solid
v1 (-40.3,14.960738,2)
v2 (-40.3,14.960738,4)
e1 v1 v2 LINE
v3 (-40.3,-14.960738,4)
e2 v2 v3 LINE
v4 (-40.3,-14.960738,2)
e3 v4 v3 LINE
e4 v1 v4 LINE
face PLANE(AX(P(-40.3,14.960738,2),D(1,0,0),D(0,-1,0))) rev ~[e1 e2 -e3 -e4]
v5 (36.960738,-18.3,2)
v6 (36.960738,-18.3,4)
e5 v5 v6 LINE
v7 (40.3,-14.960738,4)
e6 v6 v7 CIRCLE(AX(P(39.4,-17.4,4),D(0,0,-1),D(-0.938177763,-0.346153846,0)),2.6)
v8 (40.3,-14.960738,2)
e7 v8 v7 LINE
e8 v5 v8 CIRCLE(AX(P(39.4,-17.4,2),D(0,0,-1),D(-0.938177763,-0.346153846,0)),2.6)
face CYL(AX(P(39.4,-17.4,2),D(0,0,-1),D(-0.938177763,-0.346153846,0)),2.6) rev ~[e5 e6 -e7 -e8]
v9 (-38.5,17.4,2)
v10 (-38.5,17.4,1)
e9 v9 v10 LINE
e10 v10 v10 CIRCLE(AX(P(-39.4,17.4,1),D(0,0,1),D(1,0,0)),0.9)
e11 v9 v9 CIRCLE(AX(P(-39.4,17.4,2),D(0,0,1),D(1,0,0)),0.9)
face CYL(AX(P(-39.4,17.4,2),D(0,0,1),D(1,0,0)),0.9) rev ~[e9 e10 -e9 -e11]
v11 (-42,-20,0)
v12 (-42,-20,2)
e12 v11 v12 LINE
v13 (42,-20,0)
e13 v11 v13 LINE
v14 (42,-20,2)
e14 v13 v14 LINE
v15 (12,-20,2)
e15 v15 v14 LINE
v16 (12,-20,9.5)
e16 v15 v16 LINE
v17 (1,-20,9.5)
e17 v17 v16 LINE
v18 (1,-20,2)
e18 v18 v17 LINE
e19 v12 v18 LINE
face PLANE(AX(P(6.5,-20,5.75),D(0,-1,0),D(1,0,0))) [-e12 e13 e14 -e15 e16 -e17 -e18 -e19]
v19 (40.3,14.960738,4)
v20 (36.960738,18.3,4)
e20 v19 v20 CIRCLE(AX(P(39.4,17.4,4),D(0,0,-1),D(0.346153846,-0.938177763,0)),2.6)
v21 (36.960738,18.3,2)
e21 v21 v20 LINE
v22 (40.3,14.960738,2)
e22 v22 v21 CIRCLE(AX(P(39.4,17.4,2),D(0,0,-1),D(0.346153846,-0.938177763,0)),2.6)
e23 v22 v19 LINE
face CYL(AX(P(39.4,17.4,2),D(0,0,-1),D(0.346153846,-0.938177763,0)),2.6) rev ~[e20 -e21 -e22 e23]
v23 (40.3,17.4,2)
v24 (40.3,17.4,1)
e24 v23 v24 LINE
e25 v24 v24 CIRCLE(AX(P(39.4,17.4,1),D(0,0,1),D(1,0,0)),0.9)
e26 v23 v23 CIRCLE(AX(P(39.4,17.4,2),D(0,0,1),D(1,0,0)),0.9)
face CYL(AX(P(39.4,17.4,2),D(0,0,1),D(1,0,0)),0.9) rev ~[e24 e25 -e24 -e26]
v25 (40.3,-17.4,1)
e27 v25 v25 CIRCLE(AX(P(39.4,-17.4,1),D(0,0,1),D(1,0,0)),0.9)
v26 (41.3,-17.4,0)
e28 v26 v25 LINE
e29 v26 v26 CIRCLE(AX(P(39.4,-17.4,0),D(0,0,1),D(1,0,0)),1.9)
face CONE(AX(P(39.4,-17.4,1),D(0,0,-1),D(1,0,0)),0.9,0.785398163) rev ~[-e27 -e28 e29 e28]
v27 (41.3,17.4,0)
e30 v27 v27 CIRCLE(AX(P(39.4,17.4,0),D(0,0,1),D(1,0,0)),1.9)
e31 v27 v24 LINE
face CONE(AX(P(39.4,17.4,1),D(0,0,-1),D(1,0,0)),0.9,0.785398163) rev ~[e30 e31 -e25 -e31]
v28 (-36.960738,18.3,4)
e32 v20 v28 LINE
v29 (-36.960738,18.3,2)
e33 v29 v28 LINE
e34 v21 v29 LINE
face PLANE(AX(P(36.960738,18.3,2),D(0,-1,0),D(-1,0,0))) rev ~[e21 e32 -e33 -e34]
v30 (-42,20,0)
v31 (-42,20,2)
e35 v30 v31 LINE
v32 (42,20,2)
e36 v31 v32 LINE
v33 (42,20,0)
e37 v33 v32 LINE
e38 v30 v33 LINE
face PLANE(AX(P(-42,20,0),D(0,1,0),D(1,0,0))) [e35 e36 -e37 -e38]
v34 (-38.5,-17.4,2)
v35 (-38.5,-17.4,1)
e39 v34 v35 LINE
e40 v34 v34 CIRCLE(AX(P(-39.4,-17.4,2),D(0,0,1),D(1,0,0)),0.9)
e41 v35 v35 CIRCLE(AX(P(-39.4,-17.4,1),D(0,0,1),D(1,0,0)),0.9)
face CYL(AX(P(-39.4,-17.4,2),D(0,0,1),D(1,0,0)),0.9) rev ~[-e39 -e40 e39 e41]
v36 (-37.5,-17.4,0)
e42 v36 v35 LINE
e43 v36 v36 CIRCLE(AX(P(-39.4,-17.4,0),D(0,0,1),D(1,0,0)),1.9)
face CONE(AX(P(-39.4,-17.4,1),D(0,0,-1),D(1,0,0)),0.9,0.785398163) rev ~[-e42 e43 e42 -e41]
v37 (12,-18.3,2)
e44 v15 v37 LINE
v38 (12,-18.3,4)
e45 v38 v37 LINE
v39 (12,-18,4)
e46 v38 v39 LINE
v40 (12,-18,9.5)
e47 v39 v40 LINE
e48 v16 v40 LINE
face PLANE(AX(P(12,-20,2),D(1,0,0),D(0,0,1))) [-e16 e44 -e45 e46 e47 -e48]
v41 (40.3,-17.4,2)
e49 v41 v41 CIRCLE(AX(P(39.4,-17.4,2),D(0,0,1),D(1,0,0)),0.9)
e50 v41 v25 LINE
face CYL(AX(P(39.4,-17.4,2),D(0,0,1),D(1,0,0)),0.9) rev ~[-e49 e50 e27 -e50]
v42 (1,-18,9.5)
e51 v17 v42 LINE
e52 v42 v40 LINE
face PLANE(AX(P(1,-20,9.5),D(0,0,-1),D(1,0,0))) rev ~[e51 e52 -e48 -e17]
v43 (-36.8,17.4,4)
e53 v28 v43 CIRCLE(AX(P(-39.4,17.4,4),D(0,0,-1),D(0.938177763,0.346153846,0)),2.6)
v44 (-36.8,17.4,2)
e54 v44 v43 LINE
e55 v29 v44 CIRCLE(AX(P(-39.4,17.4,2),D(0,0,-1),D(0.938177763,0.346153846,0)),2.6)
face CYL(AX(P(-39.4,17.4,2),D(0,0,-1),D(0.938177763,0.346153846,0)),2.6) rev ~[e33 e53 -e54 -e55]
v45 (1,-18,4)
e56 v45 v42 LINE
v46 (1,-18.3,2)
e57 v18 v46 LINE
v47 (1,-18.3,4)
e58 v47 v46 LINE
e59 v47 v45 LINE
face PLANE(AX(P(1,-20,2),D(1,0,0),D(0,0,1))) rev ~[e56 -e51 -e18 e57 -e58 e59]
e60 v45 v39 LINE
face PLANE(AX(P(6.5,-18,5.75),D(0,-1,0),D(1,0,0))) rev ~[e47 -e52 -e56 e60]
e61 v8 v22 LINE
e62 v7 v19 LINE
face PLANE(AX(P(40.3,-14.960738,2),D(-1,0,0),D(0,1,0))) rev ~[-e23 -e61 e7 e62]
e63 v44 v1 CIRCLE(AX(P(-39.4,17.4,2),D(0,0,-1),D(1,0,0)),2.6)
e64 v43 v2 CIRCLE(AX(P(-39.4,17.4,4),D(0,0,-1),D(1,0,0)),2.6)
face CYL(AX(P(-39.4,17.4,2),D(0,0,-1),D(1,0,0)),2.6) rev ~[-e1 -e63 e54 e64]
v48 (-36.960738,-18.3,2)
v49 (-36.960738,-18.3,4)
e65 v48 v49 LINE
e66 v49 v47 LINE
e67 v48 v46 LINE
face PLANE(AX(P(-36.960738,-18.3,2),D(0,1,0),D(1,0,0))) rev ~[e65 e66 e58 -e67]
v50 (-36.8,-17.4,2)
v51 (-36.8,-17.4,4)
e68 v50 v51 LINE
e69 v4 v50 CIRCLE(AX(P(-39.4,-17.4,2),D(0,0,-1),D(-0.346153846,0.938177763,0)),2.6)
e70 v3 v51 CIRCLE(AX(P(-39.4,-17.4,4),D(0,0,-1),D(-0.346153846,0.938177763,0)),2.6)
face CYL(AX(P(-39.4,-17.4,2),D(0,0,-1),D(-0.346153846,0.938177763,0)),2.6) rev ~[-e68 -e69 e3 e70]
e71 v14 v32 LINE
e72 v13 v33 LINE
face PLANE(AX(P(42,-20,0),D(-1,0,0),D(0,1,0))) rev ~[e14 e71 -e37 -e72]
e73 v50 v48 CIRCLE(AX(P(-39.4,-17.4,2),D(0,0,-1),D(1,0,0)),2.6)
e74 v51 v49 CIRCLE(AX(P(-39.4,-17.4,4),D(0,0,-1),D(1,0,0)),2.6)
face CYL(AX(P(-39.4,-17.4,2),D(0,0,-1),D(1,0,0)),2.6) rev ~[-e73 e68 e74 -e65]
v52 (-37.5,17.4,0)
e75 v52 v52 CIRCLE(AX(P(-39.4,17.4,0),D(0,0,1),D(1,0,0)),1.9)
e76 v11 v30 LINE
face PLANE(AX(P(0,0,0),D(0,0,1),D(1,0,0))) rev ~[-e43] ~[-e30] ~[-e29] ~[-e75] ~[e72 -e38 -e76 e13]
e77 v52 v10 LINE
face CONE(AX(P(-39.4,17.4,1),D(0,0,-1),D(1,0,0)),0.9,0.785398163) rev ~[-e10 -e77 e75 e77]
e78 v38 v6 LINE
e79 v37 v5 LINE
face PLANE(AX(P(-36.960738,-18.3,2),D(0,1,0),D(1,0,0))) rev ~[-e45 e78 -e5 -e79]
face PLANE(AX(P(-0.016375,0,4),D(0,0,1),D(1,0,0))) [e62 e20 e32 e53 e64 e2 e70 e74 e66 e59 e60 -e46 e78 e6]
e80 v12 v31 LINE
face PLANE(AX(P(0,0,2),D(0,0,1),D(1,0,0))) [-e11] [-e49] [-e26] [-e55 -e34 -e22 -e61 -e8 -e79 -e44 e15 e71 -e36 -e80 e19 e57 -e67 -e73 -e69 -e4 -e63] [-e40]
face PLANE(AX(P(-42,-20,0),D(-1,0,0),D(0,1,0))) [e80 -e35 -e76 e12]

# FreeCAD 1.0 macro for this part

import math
import FreeCAD as App
import Part
import Sketcher

V = App.Vector


def edges_at(feature, points):
    """Names of the edges that pass closest to the given points."""
    edges = feature.Shape.Edges
    near = lambda p: min(range(len(edges)), key=lambda i: edges[i].distToShape(Part.Vertex(*p))[0])
    return sorted({f"Edge{near(p) + 1}" for p in points})

doc = App.newDocument("Part")
body = doc.addObject("PartDesign::Body", "Body")

# Sketch on XY plane
sketch1 = doc.addObject("Sketcher::SketchObject", "Sketch")
body.addObject(sketch1)
sketch1.AttachmentSupport = (doc.XY_Plane, [""])
sketch1.MapMode = "FlatFace"
sketch1.addGeometry([
    Part.LineSegment(V(-42, 20, 0), V(-42, -20, 0)),
    Part.LineSegment(V(-42, -20, 0), V(42, -20, 0)),
    Part.LineSegment(V(42, -20, 0), V(42, 20, 0)),
    Part.LineSegment(V(42, 20, 0), V(-42, 20, 0)),
], False)
sketch1.addConstraint([
    Sketcher.Constraint("Coincident", 0, 2, 1, 1),
    Sketcher.Constraint("Coincident", 1, 2, 2, 1),
    Sketcher.Constraint("Coincident", 2, 2, 3, 1),
    Sketcher.Constraint("Coincident", 3, 2, 0, 1),
    Sketcher.Constraint("Vertical", 0),
    Sketcher.Constraint("Horizontal", 1),
    Sketcher.Constraint("Vertical", 2),
    Sketcher.Constraint("Horizontal", 3),
    Sketcher.Constraint("Symmetric", 0, 2, 2, 2, -1, 1),
    Sketcher.Constraint("DistanceX", 1, 1, 1, 2, 84.0),
    Sketcher.Constraint("DistanceY", 0, 2, 0, 1, 40.0),
])
pad1 = doc.addObject("PartDesign::Pad", "Pad")
body.addObject(pad1)
pad1.Profile = sketch1
pad1.Length = 2

# Sketch on XY plane
sketch2 = doc.addObject("Sketcher::SketchObject", "Sketch001")
body.addObject(sketch2)
sketch2.AttachmentSupport = (doc.XY_Plane, [""])
sketch2.MapMode = "FlatFace"
sketch2.AttachmentOffset = App.Placement(V(0, 0, 2), App.Rotation())
sketch2.addGeometry([
    Part.LineSegment(V(-37, -18.3, 0), V(37, -18.3, 0)),  # 0
    Part.ArcOfCircle(Part.Circle(V(39.4, -17.4, 0), V(0, 0, 1), 2.6), math.radians(70), math.radians(200)),  # 1
    Part.LineSegment(V(40.3, -15, 0), V(40.3, 15, 0)),  # 2
    Part.ArcOfCircle(Part.Circle(V(39.4, 17.4, 0), V(0, 0, 1), 2.6), math.radians(160), math.radians(290)),  # 3
    Part.LineSegment(V(37, 18.3, 0), V(-37, 18.3, 0)),  # 4
    Part.ArcOfCircle(Part.Circle(V(-39.4, 17.4, 0), V(0, 0, 1), 2.6), math.radians(0), math.radians(20)),  # 5
    Part.ArcOfCircle(Part.Circle(V(-39.4, 17.4, 0), V(0, 0, 1), 2.6), math.radians(-110), math.radians(0)),  # 6
    Part.LineSegment(V(-40.3, 15, 0), V(-40.3, -15, 0)),  # 7
    Part.ArcOfCircle(Part.Circle(V(-39.4, -17.4, 0), V(0, 0, 1), 2.6), math.radians(0), math.radians(110)),  # 8
    Part.ArcOfCircle(Part.Circle(V(-39.4, -17.4, 0), V(0, 0, 1), 2.6), math.radians(-20), math.radians(0)),  # 9
], False)
sketch2.addConstraint([
    Sketcher.Constraint("Coincident", 0, 2, 1, 2),
    Sketcher.Constraint("Coincident", 1, 1, 2, 1),
    Sketcher.Constraint("Coincident", 2, 2, 3, 2),
    Sketcher.Constraint("Coincident", 3, 1, 4, 1),
    Sketcher.Constraint("Coincident", 4, 2, 5, 2),
    Sketcher.Constraint("Tangent", 5, 1, 6, 2),
    Sketcher.Constraint("Coincident", 6, 1, 7, 1),
    Sketcher.Constraint("Coincident", 7, 2, 8, 2),
    Sketcher.Constraint("Tangent", 8, 1, 9, 2),
    Sketcher.Constraint("Coincident", 9, 1, 0, 1),
    Sketcher.Constraint("Horizontal", 0),
    Sketcher.Constraint("Vertical", 2),
    Sketcher.Constraint("Horizontal", 4),
    Sketcher.Constraint("Vertical", 7),
    Sketcher.Constraint("Equal", 1, 3),
    Sketcher.Constraint("Equal", 3, 5),
    Sketcher.Constraint("Equal", 5, 6),
    Sketcher.Constraint("Equal", 6, 8),
    Sketcher.Constraint("Equal", 8, 9),
    Sketcher.Constraint("Symmetric", 1, 3, 5, 3, -1, 1),
    Sketcher.Constraint("Symmetric", 3, 3, 8, 3, -1, 1),
    Sketcher.Constraint("Symmetric", 3, 3, 5, 3, -2),
    Sketcher.Constraint("Horizontal", 6, 3, 5, 1),
    Sketcher.Constraint("Horizontal", 2, 2, 6, 1),
    Sketcher.Constraint("Horizontal", 9, 3, 8, 1),
    Sketcher.Constraint("Vertical", 0, 2, 3, 1),
    Sketcher.Constraint("Radius", 1, 2.6),
    Sketcher.Constraint("DistanceX", -1, 1, 1, 3, 39.4),
    Sketcher.Constraint("DistanceY", 1, 3, -1, 1, 17.4),
    Sketcher.Constraint("DistanceY", 0, 2, -1, 1, 18.3),
    Sketcher.Constraint("DistanceX", -1, 1, 1, 1, 40.3),
])
pad2 = doc.addObject("PartDesign::Pad", "Pad001")
body.addObject(pad2)
pad2.Profile = sketch2
pad2.Length = 2

# Sketch on XY plane
sketch3 = doc.addObject("Sketcher::SketchObject", "Sketch002")
body.addObject(sketch3)
sketch3.AttachmentSupport = (doc.XY_Plane, [""])
sketch3.MapMode = "FlatFace"
sketch3.AttachmentOffset = App.Placement(V(0, 0, 2), App.Rotation())
sketch3.addGeometry([
    Part.Circle(V(-39.4, 17.4, 0), V(0, 0, 1), 0.9),
    Part.Circle(V(-39.4, -17.4, 0), V(0, 0, 1), 0.9),
    Part.Circle(V(39.4, -17.4, 0), V(0, 0, 1), 0.9),
    Part.Circle(V(39.4, 17.4, 0), V(0, 0, 1), 0.9),
], False)
sketch3.addConstraint([
    Sketcher.Constraint("Equal", 0, 1),
    Sketcher.Constraint("Equal", 1, 2),
    Sketcher.Constraint("Equal", 2, 3),
    Sketcher.Constraint("Symmetric", 0, 3, 2, 3, -1, 1),
    Sketcher.Constraint("Symmetric", 1, 3, 3, 3, -1, 1),
    Sketcher.Constraint("Symmetric", 1, 3, 2, 3, -2),
    Sketcher.Constraint("Diameter", 0, 1.8),
    Sketcher.Constraint("DistanceX", 0, 3, -1, 1, 39.4),
    Sketcher.Constraint("DistanceY", -1, 1, 0, 3, 17.4),
])
pocket1 = doc.addObject("PartDesign::Pocket", "Pocket")
body.addObject(pocket1)
pocket1.Profile = sketch3
pocket1.Type = "ThroughAll"
doc.recompute()

chamfer = doc.addObject("PartDesign::Chamfer", "Chamfer")
body.addObject(chamfer)
chamfer.Base = (pocket1, edges_at(pocket1, [
    (-40.3, 17.4, 0),
    (-40.3, -17.4, 0),
    (38.5, -17.4, 0),
    (38.5, 17.4, 0),
]))
chamfer.Size = 1

# Sketch on XZ plane
sketch4 = doc.addObject("Sketcher::SketchObject", "Sketch003")
body.addObject(sketch4)
sketch4.AttachmentSupport = (doc.XZ_Plane, [""])
sketch4.MapMode = "FlatFace"
sketch4.AttachmentOffset = App.Placement(V(0, 0, 20), App.Rotation())
sketch4.addGeometry([
    Part.LineSegment(V(1, 10, 0), V(1, 2, 0)),
    Part.LineSegment(V(1, 2, 0), V(12, 2, 0)),
    Part.LineSegment(V(12, 2, 0), V(12, 10, 0)),
    Part.LineSegment(V(12, 10, 0), V(1, 10, 0)),
], False)
sketch4.addConstraint([
    Sketcher.Constraint("Coincident", 0, 2, 1, 1),
    Sketcher.Constraint("Coincident", 1, 2, 2, 1),
    Sketcher.Constraint("Coincident", 2, 2, 3, 1),
    Sketcher.Constraint("Coincident", 3, 2, 0, 1),
    Sketcher.Constraint("Vertical", 0),
    Sketcher.Constraint("Horizontal", 1),
    Sketcher.Constraint("Vertical", 2),
    Sketcher.Constraint("Horizontal", 3),
    Sketcher.Constraint("DistanceX", 1, 1, 1, 2, 11.0),
    Sketcher.Constraint("DistanceY", 0, 2, 0, 1, 7.5),
    Sketcher.Constraint("DistanceX", -1, 1, 0, 2, 1.0),
    Sketcher.Constraint("DistanceY", -1, 1, 0, 2, 2.0),
])
pad3 = doc.addObject("PartDesign::Pad", "Pad002")
body.addObject(pad3)
pad3.Profile = sketch4
pad3.Length = 2
pad3.Reversed = True

doc.recompute()
